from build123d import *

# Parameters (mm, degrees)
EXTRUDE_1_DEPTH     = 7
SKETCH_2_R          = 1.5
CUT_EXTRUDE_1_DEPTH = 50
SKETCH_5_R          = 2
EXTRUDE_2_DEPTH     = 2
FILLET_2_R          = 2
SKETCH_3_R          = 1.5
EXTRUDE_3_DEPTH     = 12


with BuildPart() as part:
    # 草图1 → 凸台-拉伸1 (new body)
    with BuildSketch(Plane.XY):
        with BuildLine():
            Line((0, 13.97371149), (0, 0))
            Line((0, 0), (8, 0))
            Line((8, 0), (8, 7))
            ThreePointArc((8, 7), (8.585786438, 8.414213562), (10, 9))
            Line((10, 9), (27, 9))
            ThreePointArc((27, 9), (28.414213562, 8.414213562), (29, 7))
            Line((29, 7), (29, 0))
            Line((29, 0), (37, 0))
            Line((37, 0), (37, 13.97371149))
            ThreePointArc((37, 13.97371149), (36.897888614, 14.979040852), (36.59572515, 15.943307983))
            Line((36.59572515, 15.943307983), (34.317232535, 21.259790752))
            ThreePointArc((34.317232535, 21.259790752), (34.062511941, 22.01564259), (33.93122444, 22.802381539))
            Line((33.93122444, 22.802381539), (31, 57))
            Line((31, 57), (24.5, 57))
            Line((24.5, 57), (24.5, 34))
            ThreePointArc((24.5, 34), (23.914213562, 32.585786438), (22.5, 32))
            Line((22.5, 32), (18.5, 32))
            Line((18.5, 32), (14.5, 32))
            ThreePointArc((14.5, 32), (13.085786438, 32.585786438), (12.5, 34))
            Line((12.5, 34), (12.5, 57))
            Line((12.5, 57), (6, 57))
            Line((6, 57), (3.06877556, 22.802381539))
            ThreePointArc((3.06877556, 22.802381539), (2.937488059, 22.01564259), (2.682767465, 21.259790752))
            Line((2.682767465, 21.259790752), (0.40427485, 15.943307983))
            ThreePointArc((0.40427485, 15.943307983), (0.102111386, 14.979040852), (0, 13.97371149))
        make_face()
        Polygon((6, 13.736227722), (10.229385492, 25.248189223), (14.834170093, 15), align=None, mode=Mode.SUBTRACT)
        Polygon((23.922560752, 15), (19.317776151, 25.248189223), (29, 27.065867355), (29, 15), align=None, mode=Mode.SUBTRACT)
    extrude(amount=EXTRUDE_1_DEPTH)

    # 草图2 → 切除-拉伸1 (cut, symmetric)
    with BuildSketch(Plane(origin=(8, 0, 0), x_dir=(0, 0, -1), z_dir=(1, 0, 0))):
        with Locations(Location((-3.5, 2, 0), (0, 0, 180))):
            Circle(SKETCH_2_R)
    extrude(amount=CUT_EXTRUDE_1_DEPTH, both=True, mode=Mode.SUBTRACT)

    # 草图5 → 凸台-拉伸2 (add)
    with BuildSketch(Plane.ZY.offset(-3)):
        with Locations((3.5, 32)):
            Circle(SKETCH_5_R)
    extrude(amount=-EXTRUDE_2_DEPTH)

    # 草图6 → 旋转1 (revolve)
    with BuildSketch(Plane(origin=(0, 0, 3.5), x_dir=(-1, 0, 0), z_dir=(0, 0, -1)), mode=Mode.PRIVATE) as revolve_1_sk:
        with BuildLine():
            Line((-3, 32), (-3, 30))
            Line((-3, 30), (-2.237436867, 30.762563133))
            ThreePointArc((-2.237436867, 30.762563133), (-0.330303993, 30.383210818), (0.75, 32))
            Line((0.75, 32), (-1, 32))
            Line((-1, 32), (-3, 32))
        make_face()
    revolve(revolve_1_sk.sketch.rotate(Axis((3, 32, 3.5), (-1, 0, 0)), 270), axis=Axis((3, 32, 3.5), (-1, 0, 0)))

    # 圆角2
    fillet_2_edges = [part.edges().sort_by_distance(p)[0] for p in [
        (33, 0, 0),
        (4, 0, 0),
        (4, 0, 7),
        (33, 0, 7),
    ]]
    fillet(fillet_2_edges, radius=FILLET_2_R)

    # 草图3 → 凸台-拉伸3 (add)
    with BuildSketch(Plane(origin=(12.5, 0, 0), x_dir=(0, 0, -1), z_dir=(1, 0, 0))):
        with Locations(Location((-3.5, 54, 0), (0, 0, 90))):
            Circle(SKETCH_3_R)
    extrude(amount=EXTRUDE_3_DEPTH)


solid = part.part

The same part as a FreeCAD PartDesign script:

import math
import FreeCAD as App
import Part
import Sketcher
Q = App.Units.Quantity


def edges_at(feature, points):
    """Names of the edges that pass closest to the given points."""
    edges = feature.Shape.Edges
    near = lambda p: min(range(len(edges)), key=lambda i: edges[i].distToShape(Part.Vertex(*p))[0])
    return sorted({f"Edge{near(p) + 1}" for p in points})


def add_polygon(sketch, points):
    """Adds a closed chain of lines whose ends are joined by coincident constraints."""
    first, n = sketch.GeometryCount, len(points)
    for a, b in zip(points, points[1:] + points[:1]):
        sketch.addGeometry(Part.LineSegment(App.Vector(*a, 0), App.Vector(*b, 0)), False)
    for i in range(n):
        sketch.addConstraint(Sketcher.Constraint("Coincident", first + i, 2, first + (i + 1) % n, 1))

doc = App.newDocument("Part")
body = doc.addObject("PartDesign::Body", "Body")

# Sketch on XY plane
sketch1 = body.newObject("Sketcher::SketchObject", "Sketch")
sketch1.AttachmentSupport = (doc.getObject("XY_Plane"), [""])
sketch1.MapMode = "FlatFace"
sketch1.addGeometry(Part.LineSegment(App.Vector(0, 13.973711, 0), App.Vector(0, 0, 0)), False)  # 0
sketch1.addGeometry(Part.LineSegment(App.Vector(0, 0, 0), App.Vector(8, 0, 0)), False)  # 1
sketch1.addGeometry(Part.LineSegment(App.Vector(8, 0, 0), App.Vector(8, 7, 0)), False)  # 2
sketch1.addGeometry(Part.ArcOfCircle(Part.Circle(App.Vector(10, 7, 0), App.Vector(0, 0, 1), 2), math.radians(90), math.radians(180)), False)  # 3
sketch1.addGeometry(Part.LineSegment(App.Vector(10, 9, 0), App.Vector(27, 9, 0)), False)  # 4
sketch1.addGeometry(Part.ArcOfCircle(Part.Circle(App.Vector(27, 7, 0), App.Vector(0, 0, 1), 2), math.radians(0), math.radians(90)), False)  # 5
sketch1.addGeometry(Part.LineSegment(App.Vector(29, 7, 0), App.Vector(29, 0, 0)), False)  # 6
sketch1.addGeometry(Part.LineSegment(App.Vector(29, 0, 0), App.Vector(37, 0, 0)), False)  # 7
sketch1.addGeometry(Part.LineSegment(App.Vector(37, 0, 0), App.Vector(37, 13.973711, 0)), False)  # 8
sketch1.addGeometry(Part.ArcOfCircle(Part.Circle(App.Vector(32, 13.973711, 0), App.Vector(0, 0, 1), 5), math.radians(0), math.radians(23.198591)), False)  # 9
sketch1.addGeometry(Part.LineSegment(App.Vector(36.595725, 15.943308, 0), App.Vector(34.317233, 21.259791, 0)), False)  # 10
sketch1.addGeometry(Part.ArcOfCircle(Part.Circle(App.Vector(38.912958, 23.229387, 0), App.Vector(0, 0, 1), 5), math.radians(-175.100908), math.radians(-156.801409)), False)  # 11
sketch1.addGeometry(Part.LineSegment(App.Vector(33.931224, 22.802382, 0), App.Vector(31, 57, 0)), False)  # 12
sketch1.addGeometry(Part.LineSegment(App.Vector(31, 57, 0), App.Vector(24.5, 57, 0)), False)  # 13
sketch1.addGeometry(Part.LineSegment(App.Vector(24.5, 57, 0), App.Vector(24.5, 34, 0)), False)  # 14
sketch1.addGeometry(Part.ArcOfCircle(Part.Circle(App.Vector(22.5, 34, 0), App.Vector(0, 0, 1), 2), math.radians(-90), math.radians(0)), False)  # 15
sketch1.addGeometry(Part.LineSegment(App.Vector(22.5, 32, 0), App.Vector(14.5, 32, 0)), False)  # 16
sketch1.addGeometry(Part.ArcOfCircle(Part.Circle(App.Vector(14.5, 34, 0), App.Vector(0, 0, 1), 2), math.radians(-180), math.radians(-90)), False)  # 17
sketch1.addGeometry(Part.LineSegment(App.Vector(12.5, 34, 0), App.Vector(12.5, 57, 0)), False)  # 18
sketch1.addGeometry(Part.LineSegment(App.Vector(12.5, 57, 0), App.Vector(6, 57, 0)), False)  # 19
sketch1.addGeometry(Part.LineSegment(App.Vector(6, 57, 0), App.Vector(3.068776, 22.802382, 0)), False)  # 20
sketch1.addGeometry(Part.ArcOfCircle(Part.Circle(App.Vector(-1.912958, 23.229387, 0), App.Vector(0, 0, 1), 5), math.radians(-23.198591), math.radians(-4.899092)), False)  # 21
sketch1.addGeometry(Part.LineSegment(App.Vector(2.682767, 21.259791, 0), App.Vector(0.404275, 15.943308, 0)), False)  # 22
sketch1.addGeometry(Part.ArcOfCircle(Part.Circle(App.Vector(5, 13.973711, 0), App.Vector(0, 0, 1), 5), math.radians(156.801409), math.radians(180)), False)  # 23
add_polygon(sketch1, [(14.83417, 15), (6, 13.736228), (10.229385, 25.248189)])  # lines 24-26
add_polygon(sketch1, [(29, 15), (23.922561, 15), (19.317776, 25.248189), (29, 27.065867)])  # lines 27-30
sketch1.addConstraint([
    Sketcher.Constraint("Coincident", 0, 2, 1, 1),
    Sketcher.Constraint("Coincident", 1, 2, 2, 1),
    Sketcher.Constraint("Tangent", 2, 2, 3, 2),
    Sketcher.Constraint("Tangent", 3, 1, 4, 1),
    Sketcher.Constraint("Tangent", 4, 2, 5, 2),
    Sketcher.Constraint("Tangent", 5, 1, 6, 1),
    Sketcher.Constraint("Coincident", 6, 2, 7, 1),
    Sketcher.Constraint("Coincident", 7, 2, 8, 1),
    Sketcher.Constraint("Tangent", 8, 2, 9, 1),
    Sketcher.Constraint("Tangent", 9, 2, 10, 1),
    Sketcher.Constraint("Tangent", 10, 2, 11, 2),
    Sketcher.Constraint("Tangent", 11, 1, 12, 1),
    Sketcher.Constraint("Coincident", 12, 2, 13, 1),
    Sketcher.Constraint("Coincident", 13, 2, 14, 1),
    Sketcher.Constraint("Tangent", 14, 2, 15, 2),
    Sketcher.Constraint("Tangent", 15, 1, 16, 1),
    Sketcher.Constraint("Tangent", 16, 2, 17, 2),
    Sketcher.Constraint("Tangent", 17, 1, 18, 1),
    Sketcher.Constraint("Coincident", 18, 2, 19, 1),
    Sketcher.Constraint("Coincident", 19, 2, 20, 1),
    Sketcher.Constraint("Tangent", 20, 2, 21, 2),
    Sketcher.Constraint("Tangent", 21, 1, 22, 1),
    Sketcher.Constraint("Tangent", 22, 2, 23, 1),
    Sketcher.Constraint("Tangent", 23, 2, 0, 1),
    Sketcher.Constraint("Vertical", 0),
    Sketcher.Constraint("Horizontal", 1),
    Sketcher.Constraint("Vertical", 2),
    Sketcher.Constraint("Horizontal", 4),
    Sketcher.Constraint("Vertical", 6),
    Sketcher.Constraint("Horizontal", 7),
    Sketcher.Constraint("Vertical", 8),
    Sketcher.Constraint("Horizontal", 13),
    Sketcher.Constraint("Vertical", 14),
    Sketcher.Constraint("Horizontal", 16),
    Sketcher.Constraint("Vertical", 18),
    Sketcher.Constraint("Horizontal", 19),
    Sketcher.Constraint("Horizontal", 27),
    Sketcher.Constraint("Vertical", 30),
    Sketcher.Constraint("Coincident", 0, 2, -1, 1),
    Sketcher.Constraint("Equal", 3, 5),
    Sketcher.Constraint("Equal", 9, 11),
    Sketcher.Constraint("Equal", 5, 15),
    Sketcher.Constraint("Equal", 15, 17),
    Sketcher.Constraint("Equal", 11, 21),
    Sketcher.Constraint("Equal", 21, 23),
    Sketcher.Constraint("PointOnObject", 6, 2, -1),
    Sketcher.Constraint("Parallel", 26, 28),
    Sketcher.Constraint("Horizontal", 11, 3, 21, 3),
    Sketcher.Constraint("Horizontal", 9, 3, 23, 3),
    Sketcher.Constraint("Horizontal", 13, 2, 18, 2),
    Sketcher.Constraint("Horizontal", 11, 1, 20, 2),
    Sketcher.Constraint("Horizontal", 10, 2, 21, 1),
    Sketcher.Constraint("Horizontal", 26, 2, 27, 2),
    Sketcher.Constraint("Horizontal", 25, 2, 28, 2),
    Sketcher.Constraint("Vertical", 19, 2, 24, 2),
    Sketcher.Constraint("Vertical", 6, 2, 29, 2),
    Sketcher.Constraint("Equal", 1, 7),
    Sketcher.Constraint("Equal", 7, 16),
    Sketcher.Constraint("Equal", 13, 19),
    Sketcher.Constraint("Radius", 3, Q("2 mm")),
    Sketcher.Constraint("Radius", 9, Q("5 mm")),
    Sketcher.Constraint("DistanceX", 1, 1, 1, 2, Q("8 mm")),
    Sketcher.Constraint("DistanceX", 4, 1, 4, 2, Q("17 mm")),
    Sketcher.Constraint("DistanceY", 2, 1, 2, 2, Q("7 mm")),
    Sketcher.Constraint("DistanceY", 14, 2, 14, 1, Q("23 mm")),
    Sketcher.Constraint("DistanceX", 13, 2, 13, 1, Q("6.5 mm")),
    Sketcher.Constraint("DistanceY", -1, 1, 15, 3, Q("34 mm")),
    Sketcher.Constraint("DistanceY", -1, 1, 26, 2, Q("15 mm")),
    Sketcher.Constraint("DistanceX", 27, 2, 27, 1, Q("5.077439 mm")),
    Sketcher.Constraint("DistanceY", 0, 2, 0, 1, Q("13.973711 mm")),
    Sketcher.Constraint("DistanceX", 11, 1, 9, 2, Q("2.664501 mm")),
    Sketcher.Constraint("DistanceY", 21, 1, 25, 2, Q("3.988398 mm")),
    Sketcher.Constraint("Distance", 10, Q("5.784161 mm")),
    Sketcher.Constraint("DistanceY", 30, 2, 30, 1, Q("12.065867 mm")),
    Sketcher.Constraint("DistanceX", -1, 1, 26, 2, Q("14.83417 mm")),
    Sketcher.Constraint("DistanceY", 24, 2, 22, 2, Q("2.20708 mm")),
    Sketcher.Constraint("DistanceX", 20, 2, 25, 2, Q("7.16061 mm")),
])
pad1 = body.newObject("PartDesign::Pad", "Pad")
pad1.Profile = sketch1
pad1.Length = 7

# Sketch on YZ plane
sketch2 = body.newObject("Sketcher::SketchObject", "Sketch001")
sketch2.AttachmentSupport = (doc.getObject("YZ_Plane"), [""])
sketch2.MapMode = "FlatFace"
sketch2.AttachmentOffset = App.Placement(App.Vector(0, 0, 8), App.Rotation())
sketch2.addGeometry(Part.Circle(App.Vector(2, 3.5, 0), App.Vector(0, 0, 1), 1.5), False)
sketch2.addConstraint([
    Sketcher.Constraint("Diameter", 0, Q("3 mm")),
    Sketcher.Constraint("DistanceX", -1, 1, 0, 3, Q("2 mm")),
    Sketcher.Constraint("DistanceY", -1, 1, 0, 3, Q("3.5 mm")),
])
pocket1 = body.newObject("PartDesign::Pocket", "Pocket")
pocket1.Profile = sketch2
pocket1.Length = 100
pocket1.Midplane = True

# Sketch on YZ plane
sketch3 = body.newObject("Sketcher::SketchObject", "Sketch002")
sketch3.AttachmentSupport = (doc.getObject("YZ_Plane"), [""])
sketch3.MapMode = "FlatFace"
sketch3.AttachmentOffset = App.Placement(App.Vector(0, 0, 3), App.Rotation())
sketch3.addGeometry(Part.Circle(App.Vector(32, 3.5, 0), App.Vector(0, 0, 1), 2), False)
sketch3.addConstraint([
    Sketcher.Constraint("Diameter", 0, Q("4 mm")),
    Sketcher.Constraint("DistanceX", -1, 1, 0, 3, Q("32 mm")),
    Sketcher.Constraint("DistanceY", -1, 1, 0, 3, Q("3.5 mm")),
])
pad2 = body.newObject("PartDesign::Pad", "Pad001")
pad2.Profile = sketch3
pad2.Length = 2

# Sketch on XY plane
sketch4 = body.newObject("Sketcher::SketchObject", "Sketch003")
sketch4.AttachmentSupport = (doc.getObject("XY_Plane"), [""])
sketch4.MapMode = "FlatFace"
sketch4.AttachmentOffset = App.Placement(App.Vector(0, 0, 3.5), App.Rotation())
sketch4.addGeometry([
    Part.LineSegment(App.Vector(3, 32, 0), App.Vector(3, 30, 0)),
    Part.LineSegment(App.Vector(3, 30, 0), App.Vector(2.237437, 30.762563, 0)),
    Part.ArcOfCircle(Part.Circle(App.Vector(1, 32, 0), App.Vector(0, 0, 1), 1.75), math.radians(180), math.radians(315)),
    Part.LineSegment(App.Vector(-0.75, 32, 0), App.Vector(3, 32, 0)),
], False)
sketch4.addGeometry(Part.LineSegment(App.Vector(3, 32, 0), App.Vector(-0.75, 32, 0)), True)  # axis
sketch4.addConstraint([
    Sketcher.Constraint("Coincident", 0, 2, 1, 1),
    Sketcher.Constraint("Coincident", 1, 2, 2, 2),
    Sketcher.Constraint("Coincident", 2, 1, 3, 1),
    Sketcher.Constraint("Coincident", 3, 2, 0, 1),
    Sketcher.Constraint("Vertical", 0),
    Sketcher.Constraint("Horizontal", 3),
    Sketcher.Constraint("Horizontal", 4),
    Sketcher.Constraint("Coincident", 4, 1, 3, 2),
    Sketcher.Constraint("Equal", 3, 4),
    Sketcher.Constraint("DistanceY", 0, 2, 0, 1, Q("2 mm")),
    Sketcher.Constraint("Angle", 1, Q("135 deg")),
    Sketcher.Constraint("Radius", 2, Q("1.75 mm")),
    Sketcher.Constraint("DistanceX", -1, 1, 2, 3, Q("1 mm")),
    Sketcher.Constraint("DistanceY", -1, 1, 2, 3, Q("32 mm")),
    Sketcher.Constraint("DistanceX", -1, 1, 0, 2, Q("3 mm")),
    Sketcher.Constraint("DistanceY", -1, 1, 0, 2, Q("30 mm")),
])
revolution = body.newObject("PartDesign::Revolution", "Revolution")
revolution.Profile = sketch4
revolution.ReferenceAxis = (sketch4, ["Axis0"])
revolution.Angle = 360
doc.recompute()

fillet = body.newObject("PartDesign::Fillet", "Fillet")
fillet.Base = (revolution, edges_at(revolution, [
    (33, 0, 0),
    (4, 0, 0),
    (4, 0, 7),
    (33, 0, 7),
]))
fillet.Radius = 2

# Sketch on YZ plane
sketch5 = body.newObject("Sketcher::SketchObject", "Sketch004")
sketch5.AttachmentSupport = (doc.getObject("YZ_Plane"), [""])
sketch5.MapMode = "FlatFace"
sketch5.AttachmentOffset = App.Placement(App.Vector(0, 0, 12.5), App.Rotation())
sketch5.addGeometry(Part.Circle(App.Vector(54, 3.5, 0), App.Vector(0, 0, 1), 1.5), False)
sketch5.addConstraint([
    Sketcher.Constraint("Diameter", 0, Q("3 mm")),
    Sketcher.Constraint("DistanceX", -1, 1, 0, 3, Q("54 mm")),
    Sketcher.Constraint("DistanceY", -1, 1, 0, 3, Q("3.5 mm")),
])
pad3 = body.newObject("PartDesign::Pad", "Pad002")
pad3.Profile = sketch5
pad3.Length = 12

doc.recompute()
